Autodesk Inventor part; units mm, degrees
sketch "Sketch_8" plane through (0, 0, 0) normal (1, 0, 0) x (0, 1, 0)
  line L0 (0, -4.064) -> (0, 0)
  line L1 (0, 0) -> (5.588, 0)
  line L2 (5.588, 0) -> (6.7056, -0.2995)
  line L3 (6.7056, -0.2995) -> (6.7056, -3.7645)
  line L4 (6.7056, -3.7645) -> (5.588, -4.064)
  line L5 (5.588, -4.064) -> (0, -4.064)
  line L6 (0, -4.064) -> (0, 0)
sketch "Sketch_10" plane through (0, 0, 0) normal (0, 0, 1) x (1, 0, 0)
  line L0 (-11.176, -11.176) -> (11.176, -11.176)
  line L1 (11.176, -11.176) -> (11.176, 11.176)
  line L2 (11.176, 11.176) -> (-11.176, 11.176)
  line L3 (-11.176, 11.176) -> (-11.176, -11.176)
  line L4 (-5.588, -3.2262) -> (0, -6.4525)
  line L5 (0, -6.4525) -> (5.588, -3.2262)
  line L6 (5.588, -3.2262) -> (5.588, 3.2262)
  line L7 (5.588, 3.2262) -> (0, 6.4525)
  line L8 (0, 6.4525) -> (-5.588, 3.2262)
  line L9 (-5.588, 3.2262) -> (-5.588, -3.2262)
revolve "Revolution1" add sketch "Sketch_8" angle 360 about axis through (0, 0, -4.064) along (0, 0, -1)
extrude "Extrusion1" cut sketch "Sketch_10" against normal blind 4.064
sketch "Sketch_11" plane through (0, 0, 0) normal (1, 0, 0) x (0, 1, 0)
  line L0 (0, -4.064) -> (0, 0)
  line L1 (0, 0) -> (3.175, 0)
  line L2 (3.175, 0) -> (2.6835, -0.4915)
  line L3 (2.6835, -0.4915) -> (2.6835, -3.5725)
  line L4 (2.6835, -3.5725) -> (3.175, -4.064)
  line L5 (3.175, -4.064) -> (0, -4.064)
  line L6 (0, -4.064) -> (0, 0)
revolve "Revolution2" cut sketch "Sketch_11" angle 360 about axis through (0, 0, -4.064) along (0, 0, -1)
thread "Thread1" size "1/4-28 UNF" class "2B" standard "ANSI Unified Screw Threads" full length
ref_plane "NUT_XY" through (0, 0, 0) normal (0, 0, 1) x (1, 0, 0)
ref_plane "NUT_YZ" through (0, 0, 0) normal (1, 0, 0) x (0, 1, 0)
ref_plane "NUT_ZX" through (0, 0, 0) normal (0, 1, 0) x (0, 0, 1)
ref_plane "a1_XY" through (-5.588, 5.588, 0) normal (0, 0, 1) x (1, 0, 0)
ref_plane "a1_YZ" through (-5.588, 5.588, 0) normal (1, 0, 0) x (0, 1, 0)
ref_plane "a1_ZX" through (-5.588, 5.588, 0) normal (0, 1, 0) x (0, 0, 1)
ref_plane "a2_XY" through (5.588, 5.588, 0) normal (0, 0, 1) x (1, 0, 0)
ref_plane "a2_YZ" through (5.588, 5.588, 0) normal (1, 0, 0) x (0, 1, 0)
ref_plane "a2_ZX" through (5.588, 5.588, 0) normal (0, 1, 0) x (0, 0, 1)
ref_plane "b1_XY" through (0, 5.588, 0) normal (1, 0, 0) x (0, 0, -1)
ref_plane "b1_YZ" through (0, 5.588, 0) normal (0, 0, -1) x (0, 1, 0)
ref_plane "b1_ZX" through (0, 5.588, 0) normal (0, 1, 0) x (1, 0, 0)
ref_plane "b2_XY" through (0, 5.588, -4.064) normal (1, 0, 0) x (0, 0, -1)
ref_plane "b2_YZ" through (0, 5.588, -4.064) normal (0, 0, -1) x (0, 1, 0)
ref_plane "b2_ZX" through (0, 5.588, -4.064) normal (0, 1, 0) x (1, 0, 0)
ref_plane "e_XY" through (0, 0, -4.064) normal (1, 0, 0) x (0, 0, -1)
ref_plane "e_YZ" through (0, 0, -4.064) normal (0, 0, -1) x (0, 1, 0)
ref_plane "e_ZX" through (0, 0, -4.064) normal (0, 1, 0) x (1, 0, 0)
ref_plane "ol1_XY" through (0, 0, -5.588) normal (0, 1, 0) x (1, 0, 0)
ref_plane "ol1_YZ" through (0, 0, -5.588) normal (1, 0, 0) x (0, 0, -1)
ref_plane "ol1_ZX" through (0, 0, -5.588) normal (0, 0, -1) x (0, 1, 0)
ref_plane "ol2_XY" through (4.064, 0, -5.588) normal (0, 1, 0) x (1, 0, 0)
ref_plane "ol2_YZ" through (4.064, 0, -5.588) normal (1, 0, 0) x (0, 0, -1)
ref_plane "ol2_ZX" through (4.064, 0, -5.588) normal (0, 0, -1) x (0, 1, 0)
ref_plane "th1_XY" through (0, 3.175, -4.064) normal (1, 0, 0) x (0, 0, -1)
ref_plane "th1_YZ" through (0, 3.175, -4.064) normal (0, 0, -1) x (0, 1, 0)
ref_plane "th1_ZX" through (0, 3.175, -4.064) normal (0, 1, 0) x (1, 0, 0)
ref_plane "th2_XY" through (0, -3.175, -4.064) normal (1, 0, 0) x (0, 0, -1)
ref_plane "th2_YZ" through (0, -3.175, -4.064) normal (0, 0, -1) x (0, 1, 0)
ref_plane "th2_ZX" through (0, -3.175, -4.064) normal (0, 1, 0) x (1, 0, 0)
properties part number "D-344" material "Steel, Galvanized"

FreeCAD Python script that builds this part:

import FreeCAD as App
import Part
import Sketcher
Q = App.Units.Quantity

doc = App.newDocument("Part")
body = doc.addObject("PartDesign::Body", "Body")

sketch1 = body.newObject("Sketcher::SketchObject", "Sketch")
sketch1.AttachmentSupport = (doc.getObject("YZ_Plane"), [""])
sketch1.MapMode = "FlatFace"
sketch1.addGeometry(Part.LineSegment(App.Vector(0, 0, 0), App.Vector(0, -4.1, 0)), False)
sketch1.addGeometry(Part.LineSegment(App.Vector(0, -4.1, 0), App.Vector(5.6, -4.1, 0)), False)
sketch1.addGeometry(Part.LineSegment(App.Vector(5.6, -4.1, 0), App.Vector(6.7, -3.8, 0)), False)
sketch1.addGeometry(Part.LineSegment(App.Vector(6.7, -3.8, 0), App.Vector(6.7, -0.3, 0)), False)
sketch1.addGeometry(Part.LineSegment(App.Vector(6.7, -0.3, 0), App.Vector(5.6, 0, 0)), False)
sketch1.addGeometry(Part.LineSegment(App.Vector(5.6, 0, 0), App.Vector(0, 0, 0)), False)
sketch1.addConstraint(Sketcher.Constraint("Coincident", 0, 2, 1, 1))
sketch1.addConstraint(Sketcher.Constraint("Coincident", 1, 2, 2, 1))
sketch1.addConstraint(Sketcher.Constraint("Coincident", 2, 2, 3, 1))
sketch1.addConstraint(Sketcher.Constraint("Coincident", 3, 2, 4, 1))
sketch1.addConstraint(Sketcher.Constraint("Coincident", 4, 2, 5, 1))
sketch1.addConstraint(Sketcher.Constraint("Coincident", 5, 2, 0, 1))
sketch1.addConstraint(Sketcher.Constraint("Vertical", 0))
sketch1.addConstraint(Sketcher.Constraint("Horizontal", 1))
sketch1.addConstraint(Sketcher.Constraint("Vertical", 3))
sketch1.addConstraint(Sketcher.Constraint("Horizontal", 5))
sketch1.addConstraint(Sketcher.Constraint("Coincident", 5, 2, -1, 1))
sketch1.addConstraint(Sketcher.Constraint("Vertical", 1, 2, 4, 2))
sketch1.addConstraint(Sketcher.Constraint("Equal", 2, 4))
sketch1.addConstraint(Sketcher.Constraint("DistanceX", 1, 1, 1, 2, Q("0.22 in")))
sketch1.addConstraint(Sketcher.Constraint("DistanceY", 0, 2, 0, 1, Q("0.16 in")))
sketch1.addConstraint(Sketcher.Constraint("DistanceX", -1, 1, 2, 2, Q("0.264 in")))
sketch1.addConstraint(Sketcher.Constraint("DistanceY", 3, 1, 3, 2, Q("3.465 mm")))
revolution = body.newObject("PartDesign::Revolution", "Revolution")
revolution.Profile = sketch1
revolution.ReferenceAxis = (sketch1, ["V_Axis"])
revolution.Angle = 360

sketch2 = body.newObject("Sketcher::SketchObject", "Sketch001")
sketch2.AttachmentSupport = (doc.getObject("XY_Plane"), [""])
sketch2.MapMode = "FlatFace"
sketch2.addGeometry(Part.LineSegment(App.Vector(-11, 11, 0), App.Vector(-11, -11, 0)), False)
sketch2.addGeometry(Part.LineSegment(App.Vector(-11, -11, 0), App.Vector(11, -11, 0)), False)
sketch2.addGeometry(Part.LineSegment(App.Vector(11, -11, 0), App.Vector(11, 11, 0)), False)
sketch2.addGeometry(Part.LineSegment(App.Vector(11, 11, 0), App.Vector(-11, 11, 0)), False)
sketch2.addGeometry(Part.LineSegment(App.Vector(0, -6, 0), App.Vector(-6, -3, 0)), False)
sketch2.addGeometry(Part.LineSegment(App.Vector(-6, -3, 0), App.Vector(-6, 3, 0)), False)
sketch2.addGeometry(Part.LineSegment(App.Vector(-6, 3, 0), App.Vector(0, 6, 0)), False)
sketch2.addGeometry(Part.LineSegment(App.Vector(0, 6, 0), App.Vector(6, 3, 0)), False)
sketch2.addGeometry(Part.LineSegment(App.Vector(6, 3, 0), App.Vector(6, -3, 0)), False)
sketch2.addGeometry(Part.LineSegment(App.Vector(6, -3, 0), App.Vector(0, -6, 0)), False)
sketch2.addConstraint(Sketcher.Constraint("Coincident", 0, 2, 1, 1))
sketch2.addConstraint(Sketcher.Constraint("Coincident", 1, 2, 2, 1))
sketch2.addConstraint(Sketcher.Constraint("Coincident", 2, 2, 3, 1))
sketch2.addConstraint(Sketcher.Constraint("Coincident", 3, 2, 0, 1))
sketch2.addConstraint(Sketcher.Constraint("Coincident", 4, 2, 5, 1))
sketch2.addConstraint(Sketcher.Constraint("Coincident", 5, 2, 6, 1))
sketch2.addConstraint(Sketcher.Constraint("Coincident", 6, 2, 7, 1))
sketch2.addConstraint(Sketcher.Constraint("Coincident", 7, 2, 8, 1))
sketch2.addConstraint(Sketcher.Constraint("Coincident", 8, 2, 9, 1))
sketch2.addConstraint(Sketcher.Constraint("Coincident", 9, 2, 4, 1))
sketch2.addConstraint(Sketcher.Constraint("Vertical", 0))
sketch2.addConstraint(Sketcher.Constraint("Horizontal", 1))
sketch2.addConstraint(Sketcher.Constraint("Vertical", 2))
sketch2.addConstraint(Sketcher.Constraint("Horizontal", 3))
sketch2.addConstraint(Sketcher.Constraint("Vertical", 5))
sketch2.addConstraint(Sketcher.Constraint("Vertical", 8))
sketch2.addConstraint(Sketcher.Constraint("Symmetric", 0, 2, 2, 2, -1, 1))
sketch2.addConstraint(Sketcher.Constraint("Symmetric", 4, 2, 7, 2, -1, 1))
sketch2.addConstraint(Sketcher.Constraint("Symmetric", 6, 2, 9, 2, -1, 1))
sketch2.addConstraint(Sketcher.Constraint("PointOnObject", 6, 2, -2))
sketch2.addConstraint(Sketcher.Constraint("Parallel", 6, 9))
sketch2.addConstraint(Sketcher.Constraint("Horizontal", 5, 2, 7, 2))
sketch2.addConstraint(Sketcher.Constraint("Equal", 3, 0))
sketch2.addConstraint(Sketcher.Constraint("Angle", 4, Q("149.9995 deg")))
sketch2.addConstraint(Sketcher.Constraint("DistanceX", 1, 1, 1, 2, Q("0.88 in")))
sketch2.addConstraint(Sketcher.Constraint("DistanceX", 4, 2, -1, 1, Q("0.22 in")))
sketch2.addConstraint(Sketcher.Constraint("DistanceY", 5, 1, 5, 2, Q("6.4524 mm")))
pocket1 = body.newObject("PartDesign::Pocket", "Pocket")
pocket1.Profile = sketch2
pocket1.Length = Q("0.16 in")

sketch3 = body.newObject("Sketcher::SketchObject", "Sketch002")
sketch3.AttachmentSupport = (doc.getObject("YZ_Plane"), [""])
sketch3.MapMode = "FlatFace"
sketch3.addGeometry(Part.LineSegment(App.Vector(0, 0, 0), App.Vector(0, -4.1, 0)), False)
sketch3.addGeometry(Part.LineSegment(App.Vector(0, -4.1, 0), App.Vector(3.2, -4.1, 0)), False)
sketch3.addGeometry(Part.LineSegment(App.Vector(3.2, -4.1, 0), App.Vector(2.7, -3.6, 0)), False)
sketch3.addGeometry(Part.LineSegment(App.Vector(2.7, -3.6, 0), App.Vector(2.7, -0.5, 0)), False)
sketch3.addGeometry(Part.LineSegment(App.Vector(2.7, -0.5, 0), App.Vector(3.2, 0, 0)), False)
sketch3.addGeometry(Part.LineSegment(App.Vector(3.2, 0, 0), App.Vector(0, 0, 0)), False)
sketch3.addConstraint(Sketcher.Constraint("Coincident", 0, 2, 1, 1))
sketch3.addConstraint(Sketcher.Constraint("Coincident", 1, 2, 2, 1))
sketch3.addConstraint(Sketcher.Constraint("Coincident", 2, 2, 3, 1))
sketch3.addConstraint(Sketcher.Constraint("Coincident", 3, 2, 4, 1))
sketch3.addConstraint(Sketcher.Constraint("Coincident", 4, 2, 5, 1))
sketch3.addConstraint(Sketcher.Constraint("Coincident", 5, 2, 0, 1))
sketch3.addConstraint(Sketcher.Constraint("Vertical", 0))
sketch3.addConstraint(Sketcher.Constraint("Horizontal", 1))
sketch3.addConstraint(Sketcher.Constraint("Vertical", 3))
sketch3.addConstraint(Sketcher.Constraint("Horizontal", 5))
sketch3.addConstraint(Sketcher.Constraint("Coincident", 5, 2, -1, 1))
sketch3.addConstraint(Sketcher.Constraint("Perpendicular", 2, 4))
sketch3.addConstraint(Sketcher.Constraint("Vertical", 1, 2, 4, 2))
sketch3.addConstraint(Sketcher.Constraint("Equal", 2, 4))
sketch3.addConstraint(Sketcher.Constraint("DistanceY", 0, 2, 0, 1, Q("0.16 in")))
sketch3.addConstraint(Sketcher.Constraint("DistanceX", 1, 1, 1, 2, Q("0.125 in")))
sketch3.addConstraint(Sketcher.Constraint("DistanceY", 3, 1, 3, 2, Q("0.1213 in")))
groove = body.newObject("PartDesign::Groove", "Groove")
groove.Profile = sketch3
groove.ReferenceAxis = (sketch3, ["V_Axis"])
groove.Angle = 360

doc.recompute()
